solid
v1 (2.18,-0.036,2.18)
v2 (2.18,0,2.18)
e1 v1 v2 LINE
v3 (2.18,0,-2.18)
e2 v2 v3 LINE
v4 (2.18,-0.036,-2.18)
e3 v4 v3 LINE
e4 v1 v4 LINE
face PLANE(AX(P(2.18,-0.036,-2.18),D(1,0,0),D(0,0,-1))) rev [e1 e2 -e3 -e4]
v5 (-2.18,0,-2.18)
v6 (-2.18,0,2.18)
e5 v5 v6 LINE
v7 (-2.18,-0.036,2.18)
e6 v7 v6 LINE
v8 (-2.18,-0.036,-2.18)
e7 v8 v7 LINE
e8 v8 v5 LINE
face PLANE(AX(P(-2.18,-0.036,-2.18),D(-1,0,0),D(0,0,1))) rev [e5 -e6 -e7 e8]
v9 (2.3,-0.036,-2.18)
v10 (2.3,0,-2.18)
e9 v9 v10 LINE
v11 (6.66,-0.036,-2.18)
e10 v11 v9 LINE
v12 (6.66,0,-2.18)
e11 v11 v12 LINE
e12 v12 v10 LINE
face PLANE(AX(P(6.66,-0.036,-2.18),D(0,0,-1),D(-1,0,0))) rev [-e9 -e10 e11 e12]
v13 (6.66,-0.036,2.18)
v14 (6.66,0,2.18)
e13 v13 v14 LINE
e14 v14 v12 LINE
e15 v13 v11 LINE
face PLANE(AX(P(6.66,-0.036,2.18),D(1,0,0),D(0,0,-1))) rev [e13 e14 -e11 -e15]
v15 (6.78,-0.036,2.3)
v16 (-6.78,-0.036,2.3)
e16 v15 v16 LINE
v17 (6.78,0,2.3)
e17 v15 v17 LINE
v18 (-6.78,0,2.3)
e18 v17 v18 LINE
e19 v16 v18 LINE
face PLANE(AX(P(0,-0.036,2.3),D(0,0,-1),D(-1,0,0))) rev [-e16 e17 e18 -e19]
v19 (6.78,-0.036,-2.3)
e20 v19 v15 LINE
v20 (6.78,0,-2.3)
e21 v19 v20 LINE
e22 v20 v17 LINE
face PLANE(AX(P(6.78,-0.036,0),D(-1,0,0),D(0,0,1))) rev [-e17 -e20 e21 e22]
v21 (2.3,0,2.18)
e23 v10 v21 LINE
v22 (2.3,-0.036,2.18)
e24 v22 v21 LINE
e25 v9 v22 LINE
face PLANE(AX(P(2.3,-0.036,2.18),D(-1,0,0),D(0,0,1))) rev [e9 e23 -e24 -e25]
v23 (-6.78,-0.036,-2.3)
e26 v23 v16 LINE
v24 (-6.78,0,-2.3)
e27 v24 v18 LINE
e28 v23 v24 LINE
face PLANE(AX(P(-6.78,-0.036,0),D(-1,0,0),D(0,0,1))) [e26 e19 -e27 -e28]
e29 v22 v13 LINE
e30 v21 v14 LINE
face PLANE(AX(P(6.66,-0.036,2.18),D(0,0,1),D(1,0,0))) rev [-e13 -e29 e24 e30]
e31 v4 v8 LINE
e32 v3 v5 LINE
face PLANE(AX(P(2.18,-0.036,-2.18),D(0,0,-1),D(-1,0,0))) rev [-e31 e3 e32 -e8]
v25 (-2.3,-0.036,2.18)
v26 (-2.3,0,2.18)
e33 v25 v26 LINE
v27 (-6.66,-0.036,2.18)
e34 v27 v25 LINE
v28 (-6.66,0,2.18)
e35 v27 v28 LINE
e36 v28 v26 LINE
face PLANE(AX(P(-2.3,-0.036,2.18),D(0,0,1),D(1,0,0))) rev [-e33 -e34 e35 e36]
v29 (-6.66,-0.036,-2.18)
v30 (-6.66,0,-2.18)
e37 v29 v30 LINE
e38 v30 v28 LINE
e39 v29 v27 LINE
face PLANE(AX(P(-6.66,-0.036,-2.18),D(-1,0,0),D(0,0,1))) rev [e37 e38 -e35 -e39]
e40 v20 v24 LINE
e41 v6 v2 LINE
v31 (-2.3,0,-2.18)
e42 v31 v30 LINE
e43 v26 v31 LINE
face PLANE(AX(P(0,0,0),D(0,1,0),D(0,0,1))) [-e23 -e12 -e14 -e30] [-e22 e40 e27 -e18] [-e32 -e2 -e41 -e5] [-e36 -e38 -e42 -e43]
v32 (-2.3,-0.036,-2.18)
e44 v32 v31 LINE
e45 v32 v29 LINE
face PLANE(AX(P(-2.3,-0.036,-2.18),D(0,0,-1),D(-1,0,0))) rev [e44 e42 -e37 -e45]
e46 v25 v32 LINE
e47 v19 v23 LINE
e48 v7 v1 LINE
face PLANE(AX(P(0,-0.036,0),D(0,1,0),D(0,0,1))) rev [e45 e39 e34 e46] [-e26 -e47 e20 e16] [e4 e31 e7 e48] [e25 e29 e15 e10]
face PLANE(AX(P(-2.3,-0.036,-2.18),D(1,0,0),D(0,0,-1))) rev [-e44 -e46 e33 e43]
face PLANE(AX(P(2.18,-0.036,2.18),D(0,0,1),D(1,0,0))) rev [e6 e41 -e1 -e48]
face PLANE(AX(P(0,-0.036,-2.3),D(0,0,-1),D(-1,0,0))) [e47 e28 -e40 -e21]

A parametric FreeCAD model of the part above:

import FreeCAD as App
import Part
import Sketcher
from FreeCAD import Vector
Q = App.Units.Quantity


def add_polygon(sketch, points):
    """Adds a closed chain of lines whose ends are joined by coincident constraints."""
    first, n = sketch.GeometryCount, len(points)
    for a, b in zip(points, points[1:] + points[:1]):
        sketch.addGeometry(Part.LineSegment(App.Vector(*a, 0), App.Vector(*b, 0)), False)
    for i in range(n):
        sketch.addConstraint(Sketcher.Constraint("Coincident", first + i, 2, first + (i + 1) % n, 1))

doc = App.newDocument("Part")
body = doc.addObject("PartDesign::Body", "Body")

# Sketch on XZ plane
sketch1 = doc.addObject("Sketcher::SketchObject", "Sketch")
body.addObject(sketch1)
sketch1.AttachmentSupport = (doc.XZ_Plane, [""])
sketch1.MapMode = "FlatFace"
add_polygon(sketch1, [(-6.8, -2.3), (-6.8, 2.3), (6.8, 2.3), (6.8, -2.3)])  # lines 0-3
sketch1.addConstraint(Sketcher.Constraint("Vertical", 0))
sketch1.addConstraint(Sketcher.Constraint("Horizontal", 1))
sketch1.addConstraint(Sketcher.Constraint("Vertical", 2))
sketch1.addConstraint(Sketcher.Constraint("Horizontal", 3))
sketch1.addConstraint(Sketcher.Constraint("Symmetric", 0, 2, 2, 2, -1, 1))
sketch1.addConstraint(Sketcher.Constraint("DistanceY", 0, 1, 0, 2, Q("4.6 mm")))
sketch1.addConstraint(Sketcher.Constraint("DistanceX", 1, 1, 1, 2, Q("13.56 mm")))
pad1 = doc.addObject("PartDesign::Pad", "Pad")
body.addObject(pad1)
pad1.Profile = sketch1
pad1.Length = 0.036

# Sketch on XZ plane
sketch2 = doc.addObject("Sketcher::SketchObject", "Sketch001")
body.addObject(sketch2)
sketch2.AttachmentSupport = (doc.XZ_Plane, [""])
sketch2.MapMode = "FlatFace"
add_polygon(sketch2, [(-2.2, -2.2), (-2.2, 2.2), (2.2, 2.2), (2.2, -2.2)])  # lines 0-3
add_polygon(sketch2, [(-6.7, -2.2), (-6.7, 2.2), (-2.3, 2.2), (-2.3, -2.2)])  # lines 4-7
add_polygon(sketch2, [(2.3, -2.2), (2.3, 2.2), (6.7, 2.2), (6.7, -2.2)])  # lines 8-11
sketch2.addConstraint(Sketcher.Constraint("Vertical", 0))
sketch2.addConstraint(Sketcher.Constraint("Horizontal", 1))
sketch2.addConstraint(Sketcher.Constraint("Vertical", 2))
sketch2.addConstraint(Sketcher.Constraint("Horizontal", 3))
sketch2.addConstraint(Sketcher.Constraint("Vertical", 4))
sketch2.addConstraint(Sketcher.Constraint("Horizontal", 5))
sketch2.addConstraint(Sketcher.Constraint("Vertical", 6))
sketch2.addConstraint(Sketcher.Constraint("Horizontal", 7))
sketch2.addConstraint(Sketcher.Constraint("Vertical", 8))
sketch2.addConstraint(Sketcher.Constraint("Horizontal", 9))
sketch2.addConstraint(Sketcher.Constraint("Vertical", 10))
sketch2.addConstraint(Sketcher.Constraint("Horizontal", 11))
sketch2.addConstraint(Sketcher.Constraint("Symmetric", 0, 2, 2, 2, -1, 1))
sketch2.addConstraint(Sketcher.Constraint("Symmetric", 6, 2, 8, 2, -1, 1))
sketch2.addConstraint(Sketcher.Constraint("Symmetric", 4, 2, 10, 2, -1, 1))
sketch2.addConstraint(Sketcher.Constraint("Horizontal", 1, 2, 4, 2))
sketch2.addConstraint(Sketcher.Constraint("Horizontal", 3, 2, 6, 2))
sketch2.addConstraint(Sketcher.Constraint("Equal", 3, 5))
sketch2.addConstraint(Sketcher.Constraint("Equal", 11, 0))
sketch2.addConstraint(Sketcher.Constraint("DistanceX", 1, 1, 1, 2, Q("4.36 mm")))
sketch2.addConstraint(Sketcher.Constraint("DistanceX", 5, 2, -1, 1, Q("2.3 mm")))
pocket1 = doc.addObject("PartDesign::Pocket", "Pocket")
body.addObject(pocket1)
pocket1.Profile = sketch2
pocket1.Length = 0.036
pocket1.Reversed = True

doc.recompute()
